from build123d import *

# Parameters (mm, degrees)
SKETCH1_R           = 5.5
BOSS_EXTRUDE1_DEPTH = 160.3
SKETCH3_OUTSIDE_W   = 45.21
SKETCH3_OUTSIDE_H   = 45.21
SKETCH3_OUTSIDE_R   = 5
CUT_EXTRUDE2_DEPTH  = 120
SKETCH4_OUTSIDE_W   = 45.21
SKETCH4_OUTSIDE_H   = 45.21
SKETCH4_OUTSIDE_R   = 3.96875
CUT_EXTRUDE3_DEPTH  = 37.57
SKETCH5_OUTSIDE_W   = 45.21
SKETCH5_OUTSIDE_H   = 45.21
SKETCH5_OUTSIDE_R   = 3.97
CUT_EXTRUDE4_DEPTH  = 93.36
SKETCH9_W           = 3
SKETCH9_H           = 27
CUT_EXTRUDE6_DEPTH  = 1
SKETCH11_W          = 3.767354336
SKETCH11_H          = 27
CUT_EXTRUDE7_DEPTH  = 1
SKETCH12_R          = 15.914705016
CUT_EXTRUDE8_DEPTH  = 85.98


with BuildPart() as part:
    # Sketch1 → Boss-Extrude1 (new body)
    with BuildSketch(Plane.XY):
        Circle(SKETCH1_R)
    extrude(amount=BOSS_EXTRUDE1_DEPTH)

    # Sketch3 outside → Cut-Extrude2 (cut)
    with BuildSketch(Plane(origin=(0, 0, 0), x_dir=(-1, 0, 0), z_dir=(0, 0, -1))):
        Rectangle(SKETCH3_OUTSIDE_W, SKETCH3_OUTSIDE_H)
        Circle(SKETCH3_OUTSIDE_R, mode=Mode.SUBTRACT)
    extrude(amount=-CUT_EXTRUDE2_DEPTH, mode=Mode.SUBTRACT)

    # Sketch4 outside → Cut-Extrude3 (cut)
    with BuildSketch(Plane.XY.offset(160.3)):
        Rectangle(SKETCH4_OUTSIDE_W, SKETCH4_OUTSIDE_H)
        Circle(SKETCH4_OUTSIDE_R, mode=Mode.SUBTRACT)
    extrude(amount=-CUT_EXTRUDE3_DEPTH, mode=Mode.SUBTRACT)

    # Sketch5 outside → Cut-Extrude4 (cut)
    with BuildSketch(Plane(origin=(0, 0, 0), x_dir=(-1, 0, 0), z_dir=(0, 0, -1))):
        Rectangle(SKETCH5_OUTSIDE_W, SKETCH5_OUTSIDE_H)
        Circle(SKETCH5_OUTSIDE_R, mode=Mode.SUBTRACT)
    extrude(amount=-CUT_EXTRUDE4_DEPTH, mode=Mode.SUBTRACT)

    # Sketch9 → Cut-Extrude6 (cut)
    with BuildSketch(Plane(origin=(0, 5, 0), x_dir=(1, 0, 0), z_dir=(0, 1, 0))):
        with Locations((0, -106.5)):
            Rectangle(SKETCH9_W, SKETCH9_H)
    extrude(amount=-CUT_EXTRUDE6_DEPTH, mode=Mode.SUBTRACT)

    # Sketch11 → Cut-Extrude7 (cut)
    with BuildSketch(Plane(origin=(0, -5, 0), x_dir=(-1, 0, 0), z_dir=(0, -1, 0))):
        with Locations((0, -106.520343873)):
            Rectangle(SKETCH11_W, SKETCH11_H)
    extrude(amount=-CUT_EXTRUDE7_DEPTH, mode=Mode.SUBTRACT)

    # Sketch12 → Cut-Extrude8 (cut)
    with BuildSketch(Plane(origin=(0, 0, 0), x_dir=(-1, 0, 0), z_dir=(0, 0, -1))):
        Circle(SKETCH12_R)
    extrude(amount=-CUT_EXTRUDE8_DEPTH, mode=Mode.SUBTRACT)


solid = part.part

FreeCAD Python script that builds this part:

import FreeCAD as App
import Part
import Sketcher
from FreeCAD import Vector
Q = App.Units.Quantity

doc = App.newDocument("Part")
params = doc.addObject("Spreadsheet::Sheet", "Params")
for row, (alias, value) in enumerate([
    ("sketch1_diameter", "11 mm"),
    ("pad1_length", "160.3 mm"),
    ("sketch2_diameter", "10 mm"),
    ("sketch2_width", "45.21 mm"),
    ("pocket1_length", "120 mm"),
    ("sketch3_width", "45.21 mm"),
    ("pocket2_length", "37.57 mm"),
    ("sketch4_diameter", "7.94 mm"),
    ("sketch4_width", "45.21 mm"),
    ("pocket3_length", "93.36 mm"),
    ("sketch5_width", "3 mm"),
    ("sketch5_height", "27 mm"),
    ("pocket4_length", "1 mm"),
    ("sketch6_height", "27 mm"),
    ("pocket5_length", "1 mm"),
    ("pocket6_length", "85.98 mm"),
], start=1):
    params.set(f"A{row}", alias)
    params.set(f"B{row}", "=" + value)
    params.setAlias(f"B{row}", alias)

body = doc.addObject("PartDesign::Body", "Body")

sketch1 = body.newObject("Sketcher::SketchObject", "Sketch")
sketch1.AttachmentSupport = (doc.getObject("XY_Plane"), [""])
sketch1.MapMode = "FlatFace"
sketch1.addGeometry(Part.Circle(Vector(0, 0, 0), Vector(0, 0, 1), 5.5), False)
sketch1.addConstraint(Sketcher.Constraint("Coincident", 0, 3, -1, 1))
sketch1.addConstraint(Sketcher.Constraint("Diameter", 0, Q("11 mm")))
sketch1.setExpression("Constraints[1]", "Params.sketch1_diameter")
pad1 = body.newObject("PartDesign::Pad", "Pad")
pad1.Profile = sketch1
pad1.setExpression("Length", "Params.pad1_length")

sketch2 = body.newObject("Sketcher::SketchObject", "Sketch001")
sketch2.AttachmentSupport = (doc.getObject("XY_Plane"), [""])
sketch2.MapMode = "FlatFace"
sketch2.addGeometry(Part.LineSegment(Vector(22.605, 22.605, 0), Vector(22.605, -22.605, 0)), False)
sketch2.addGeometry(Part.LineSegment(Vector(22.605, -22.605, 0), Vector(-22.605, -22.605, 0)), False)
sketch2.addGeometry(Part.LineSegment(Vector(-22.605, -22.605, 0), Vector(-22.605, 22.605, 0)), False)
sketch2.addGeometry(Part.LineSegment(Vector(-22.605, 22.605, 0), Vector(22.605, 22.605, 0)), False)
sketch2.addGeometry(Part.Circle(Vector(0, 0, 0), Vector(0, 0, 1), 5), False)
sketch2.addConstraint(Sketcher.Constraint("Coincident", 0, 2, 1, 1))
sketch2.addConstraint(Sketcher.Constraint("Coincident", 1, 2, 2, 1))
sketch2.addConstraint(Sketcher.Constraint("Coincident", 2, 2, 3, 1))
sketch2.addConstraint(Sketcher.Constraint("Coincident", 3, 2, 0, 1))
sketch2.addConstraint(Sketcher.Constraint("Vertical", 0))
sketch2.addConstraint(Sketcher.Constraint("Horizontal", 1))
sketch2.addConstraint(Sketcher.Constraint("Vertical", 2))
sketch2.addConstraint(Sketcher.Constraint("Horizontal", 3))
sketch2.addConstraint(Sketcher.Constraint("Coincident", 4, 3, -1, 1))
sketch2.addConstraint(Sketcher.Constraint("Symmetric", 0, 2, 2, 2, -1, 1))
sketch2.addConstraint(Sketcher.Constraint("Equal", 3, 0))
sketch2.addConstraint(Sketcher.Constraint("Diameter", 4, Q("10 mm")))
sketch2.addConstraint(Sketcher.Constraint("DistanceX", 1, 2, 1, 1, Q("45.21 mm")))
sketch2.setExpression("Constraints[11]", "Params.sketch2_diameter")
sketch2.setExpression("Constraints[12]", "Params.sketch2_width")
pocket1 = body.newObject("PartDesign::Pocket", "Pocket")
pocket1.Profile = sketch2
pocket1.setExpression("Length", "Params.pocket1_length")
pocket1.Reversed = True

sketch3 = body.newObject("Sketcher::SketchObject", "Sketch002")
sketch3.AttachmentSupport = (doc.getObject("XY_Plane"), [""])
sketch3.MapMode = "FlatFace"
sketch3.AttachmentOffset = App.Placement(Vector(0, 0, 160.3), App.Rotation())
sketch3.addGeometry(Part.LineSegment(Vector(-22.605, 22.605, 0), Vector(-22.605, -22.605, 0)), False)
sketch3.addGeometry(Part.LineSegment(Vector(-22.605, -22.605, 0), Vector(22.605, -22.605, 0)), False)
sketch3.addGeometry(Part.LineSegment(Vector(22.605, -22.605, 0), Vector(22.605, 22.605, 0)), False)
sketch3.addGeometry(Part.LineSegment(Vector(22.605, 22.605, 0), Vector(-22.605, 22.605, 0)), False)
sketch3.addGeometry(Part.Circle(Vector(0, 0, 0), Vector(0, 0, 1), 3.96875), False)
sketch3.addConstraint(Sketcher.Constraint("Coincident", 0, 2, 1, 1))
sketch3.addConstraint(Sketcher.Constraint("Coincident", 1, 2, 2, 1))
sketch3.addConstraint(Sketcher.Constraint("Coincident", 2, 2, 3, 1))
sketch3.addConstraint(Sketcher.Constraint("Coincident", 3, 2, 0, 1))
sketch3.addConstraint(Sketcher.Constraint("Vertical", 0))
sketch3.addConstraint(Sketcher.Constraint("Horizontal", 1))
sketch3.addConstraint(Sketcher.Constraint("Vertical", 2))
sketch3.addConstraint(Sketcher.Constraint("Horizontal", 3))
sketch3.addConstraint(Sketcher.Constraint("Coincident", 4, 3, -1, 1))
sketch3.addConstraint(Sketcher.Constraint("Symmetric", 0, 2, 2, 2, -1, 1))
sketch3.addConstraint(Sketcher.Constraint("Equal", 3, 0))
sketch3.addConstraint(Sketcher.Constraint("Diameter", 4, Q("7.9375 mm")))
sketch3.addConstraint(Sketcher.Constraint("DistanceX", 1, 1, 1, 2, Q("45.21 mm")))
sketch3.setExpression("Constraints[12]", "Params.sketch3_width")
pocket2 = body.newObject("PartDesign::Pocket", "Pocket001")
pocket2.Profile = sketch3
pocket2.setExpression("Length", "Params.pocket2_length")

sketch4 = body.newObject("Sketcher::SketchObject", "Sketch003")
sketch4.AttachmentSupport = (doc.getObject("XY_Plane"), [""])
sketch4.MapMode = "FlatFace"
sketch4.addGeometry(Part.LineSegment(Vector(22.605, 22.605, 0), Vector(22.605, -22.605, 0)), False)
sketch4.addGeometry(Part.LineSegment(Vector(22.605, -22.605, 0), Vector(-22.605, -22.605, 0)), False)
sketch4.addGeometry(Part.LineSegment(Vector(-22.605, -22.605, 0), Vector(-22.605, 22.605, 0)), False)
sketch4.addGeometry(Part.LineSegment(Vector(-22.605, 22.605, 0), Vector(22.605, 22.605, 0)), False)
sketch4.addGeometry(Part.Circle(Vector(0, 0, 0), Vector(0, 0, 1), 3.97), False)
sketch4.addConstraint(Sketcher.Constraint("Coincident", 0, 2, 1, 1))
sketch4.addConstraint(Sketcher.Constraint("Coincident", 1, 2, 2, 1))
sketch4.addConstraint(Sketcher.Constraint("Coincident", 2, 2, 3, 1))
sketch4.addConstraint(Sketcher.Constraint("Coincident", 3, 2, 0, 1))
sketch4.addConstraint(Sketcher.Constraint("Vertical", 0))
sketch4.addConstraint(Sketcher.Constraint("Horizontal", 1))
sketch4.addConstraint(Sketcher.Constraint("Vertical", 2))
sketch4.addConstraint(Sketcher.Constraint("Horizontal", 3))
sketch4.addConstraint(Sketcher.Constraint("Coincident", 4, 3, -1, 1))
sketch4.addConstraint(Sketcher.Constraint("Symmetric", 0, 2, 2, 2, -1, 1))
sketch4.addConstraint(Sketcher.Constraint("Equal", 3, 0))
sketch4.addConstraint(Sketcher.Constraint("Diameter", 4, Q("7.94 mm")))
sketch4.addConstraint(Sketcher.Constraint("DistanceX", 1, 2, 1, 1, Q("45.21 mm")))
sketch4.setExpression("Constraints[11]", "Params.sketch4_diameter")
sketch4.setExpression("Constraints[12]", "Params.sketch4_width")
pocket3 = body.newObject("PartDesign::Pocket", "Pocket002")
pocket3.Profile = sketch4
pocket3.setExpression("Length", "Params.pocket3_length")
pocket3.Reversed = True

sketch5 = body.newObject("Sketcher::SketchObject", "Sketch004")
sketch5.AttachmentSupport = (doc.getObject("XZ_Plane"), [""])
sketch5.MapMode = "FlatFace"
sketch5.AttachmentOffset = App.Placement(Vector(0, 0, -5), App.Rotation())
sketch5.addGeometry(Part.LineSegment(Vector(-1.5, 93, 0), Vector(-1.5, 120, 0)), False)
sketch5.addGeometry(Part.LineSegment(Vector(-1.5, 120, 0), Vector(1.5, 120, 0)), False)
sketch5.addGeometry(Part.LineSegment(Vector(1.5, 120, 0), Vector(1.5, 93, 0)), False)
sketch5.addGeometry(Part.LineSegment(Vector(1.5, 93, 0), Vector(-1.5, 93, 0)), False)
sketch5.addConstraint(Sketcher.Constraint("Coincident", 0, 2, 1, 1))
sketch5.addConstraint(Sketcher.Constraint("Coincident", 1, 2, 2, 1))
sketch5.addConstraint(Sketcher.Constraint("Coincident", 2, 2, 3, 1))
sketch5.addConstraint(Sketcher.Constraint("Coincident", 3, 2, 0, 1))
sketch5.addConstraint(Sketcher.Constraint("Vertical", 0))
sketch5.addConstraint(Sketcher.Constraint("Horizontal", 1))
sketch5.addConstraint(Sketcher.Constraint("Vertical", 2))
sketch5.addConstraint(Sketcher.Constraint("Horizontal", 3))
sketch5.addConstraint(Sketcher.Constraint("DistanceX", 1, 1, 1, 2, Q("3 mm")))
sketch5.addConstraint(Sketcher.Constraint("DistanceY", 0, 1, 0, 2, Q("27 mm")))
sketch5.addConstraint(Sketcher.Constraint("DistanceY", -1, 1, 0, 2, Q("120 mm")))
sketch5.addConstraint(Sketcher.Constraint("DistanceX", 0, 2, -1, 1, Q("1.5 mm")))
sketch5.setExpression("Constraints[8]", "Params.sketch5_width")
sketch5.setExpression("Constraints[9]", "Params.sketch5_height")
pocket4 = body.newObject("PartDesign::Pocket", "Pocket003")
pocket4.Profile = sketch5
pocket4.setExpression("Length", "Params.pocket4_length")
pocket4.Reversed = True

sketch6 = body.newObject("Sketcher::SketchObject", "Sketch005")
sketch6.AttachmentSupport = (doc.getObject("XZ_Plane"), [""])
sketch6.MapMode = "FlatFace"
sketch6.AttachmentOffset = App.Placement(Vector(0, 0, 5), App.Rotation())
sketch6.addGeometry(Part.LineSegment(Vector(1.883677, 93.020344, 0), Vector(1.883677, 120.020344, 0)), False)
sketch6.addGeometry(Part.LineSegment(Vector(1.883677, 120.020344, 0), Vector(-1.883677, 120.020344, 0)), False)
sketch6.addGeometry(Part.LineSegment(Vector(-1.883677, 120.020344, 0), Vector(-1.883677, 93.020344, 0)), False)
sketch6.addGeometry(Part.LineSegment(Vector(-1.883677, 93.020344, 0), Vector(1.883677, 93.020344, 0)), False)
sketch6.addConstraint(Sketcher.Constraint("Coincident", 0, 2, 1, 1))
sketch6.addConstraint(Sketcher.Constraint("Coincident", 1, 2, 2, 1))
sketch6.addConstraint(Sketcher.Constraint("Coincident", 2, 2, 3, 1))
sketch6.addConstraint(Sketcher.Constraint("Coincident", 3, 2, 0, 1))
sketch6.addConstraint(Sketcher.Constraint("Vertical", 0))
sketch6.addConstraint(Sketcher.Constraint("Horizontal", 1))
sketch6.addConstraint(Sketcher.Constraint("Vertical", 2))
sketch6.addConstraint(Sketcher.Constraint("Horizontal", 3))
sketch6.addConstraint(Sketcher.Constraint("DistanceY", 0, 1, 0, 2, Q("27 mm")))
sketch6.addConstraint(Sketcher.Constraint("DistanceX", 1, 2, 1, 1, Q("3.767354 mm")))
sketch6.addConstraint(Sketcher.Constraint("DistanceX", -1, 1, 0, 2, Q("1.883677 mm")))
sketch6.addConstraint(Sketcher.Constraint("DistanceY", -1, 1, 0, 2, Q("120.020344 mm")))
sketch6.setExpression("Constraints[8]", "Params.sketch6_height")
pocket5 = body.newObject("PartDesign::Pocket", "Pocket004")
pocket5.Profile = sketch6
pocket5.setExpression("Length", "Params.pocket5_length")

sketch7 = body.newObject("Sketcher::SketchObject", "Sketch006")
sketch7.AttachmentSupport = (doc.getObject("XY_Plane"), [""])
sketch7.MapMode = "FlatFace"
sketch7.addGeometry(Part.Circle(Vector(0, 0, 0), Vector(0, 0, 1), 15.914705), False)
sketch7.addConstraint(Sketcher.Constraint("Coincident", 0, 3, -1, 1))
sketch7.addConstraint(Sketcher.Constraint("Diameter", 0, Q("31.82941 mm")))
pocket6 = body.newObject("PartDesign::Pocket", "Pocket005")
pocket6.Profile = sketch7
pocket6.setExpression("Length", "Params.pocket6_length")
pocket6.Reversed = True

doc.recompute()
